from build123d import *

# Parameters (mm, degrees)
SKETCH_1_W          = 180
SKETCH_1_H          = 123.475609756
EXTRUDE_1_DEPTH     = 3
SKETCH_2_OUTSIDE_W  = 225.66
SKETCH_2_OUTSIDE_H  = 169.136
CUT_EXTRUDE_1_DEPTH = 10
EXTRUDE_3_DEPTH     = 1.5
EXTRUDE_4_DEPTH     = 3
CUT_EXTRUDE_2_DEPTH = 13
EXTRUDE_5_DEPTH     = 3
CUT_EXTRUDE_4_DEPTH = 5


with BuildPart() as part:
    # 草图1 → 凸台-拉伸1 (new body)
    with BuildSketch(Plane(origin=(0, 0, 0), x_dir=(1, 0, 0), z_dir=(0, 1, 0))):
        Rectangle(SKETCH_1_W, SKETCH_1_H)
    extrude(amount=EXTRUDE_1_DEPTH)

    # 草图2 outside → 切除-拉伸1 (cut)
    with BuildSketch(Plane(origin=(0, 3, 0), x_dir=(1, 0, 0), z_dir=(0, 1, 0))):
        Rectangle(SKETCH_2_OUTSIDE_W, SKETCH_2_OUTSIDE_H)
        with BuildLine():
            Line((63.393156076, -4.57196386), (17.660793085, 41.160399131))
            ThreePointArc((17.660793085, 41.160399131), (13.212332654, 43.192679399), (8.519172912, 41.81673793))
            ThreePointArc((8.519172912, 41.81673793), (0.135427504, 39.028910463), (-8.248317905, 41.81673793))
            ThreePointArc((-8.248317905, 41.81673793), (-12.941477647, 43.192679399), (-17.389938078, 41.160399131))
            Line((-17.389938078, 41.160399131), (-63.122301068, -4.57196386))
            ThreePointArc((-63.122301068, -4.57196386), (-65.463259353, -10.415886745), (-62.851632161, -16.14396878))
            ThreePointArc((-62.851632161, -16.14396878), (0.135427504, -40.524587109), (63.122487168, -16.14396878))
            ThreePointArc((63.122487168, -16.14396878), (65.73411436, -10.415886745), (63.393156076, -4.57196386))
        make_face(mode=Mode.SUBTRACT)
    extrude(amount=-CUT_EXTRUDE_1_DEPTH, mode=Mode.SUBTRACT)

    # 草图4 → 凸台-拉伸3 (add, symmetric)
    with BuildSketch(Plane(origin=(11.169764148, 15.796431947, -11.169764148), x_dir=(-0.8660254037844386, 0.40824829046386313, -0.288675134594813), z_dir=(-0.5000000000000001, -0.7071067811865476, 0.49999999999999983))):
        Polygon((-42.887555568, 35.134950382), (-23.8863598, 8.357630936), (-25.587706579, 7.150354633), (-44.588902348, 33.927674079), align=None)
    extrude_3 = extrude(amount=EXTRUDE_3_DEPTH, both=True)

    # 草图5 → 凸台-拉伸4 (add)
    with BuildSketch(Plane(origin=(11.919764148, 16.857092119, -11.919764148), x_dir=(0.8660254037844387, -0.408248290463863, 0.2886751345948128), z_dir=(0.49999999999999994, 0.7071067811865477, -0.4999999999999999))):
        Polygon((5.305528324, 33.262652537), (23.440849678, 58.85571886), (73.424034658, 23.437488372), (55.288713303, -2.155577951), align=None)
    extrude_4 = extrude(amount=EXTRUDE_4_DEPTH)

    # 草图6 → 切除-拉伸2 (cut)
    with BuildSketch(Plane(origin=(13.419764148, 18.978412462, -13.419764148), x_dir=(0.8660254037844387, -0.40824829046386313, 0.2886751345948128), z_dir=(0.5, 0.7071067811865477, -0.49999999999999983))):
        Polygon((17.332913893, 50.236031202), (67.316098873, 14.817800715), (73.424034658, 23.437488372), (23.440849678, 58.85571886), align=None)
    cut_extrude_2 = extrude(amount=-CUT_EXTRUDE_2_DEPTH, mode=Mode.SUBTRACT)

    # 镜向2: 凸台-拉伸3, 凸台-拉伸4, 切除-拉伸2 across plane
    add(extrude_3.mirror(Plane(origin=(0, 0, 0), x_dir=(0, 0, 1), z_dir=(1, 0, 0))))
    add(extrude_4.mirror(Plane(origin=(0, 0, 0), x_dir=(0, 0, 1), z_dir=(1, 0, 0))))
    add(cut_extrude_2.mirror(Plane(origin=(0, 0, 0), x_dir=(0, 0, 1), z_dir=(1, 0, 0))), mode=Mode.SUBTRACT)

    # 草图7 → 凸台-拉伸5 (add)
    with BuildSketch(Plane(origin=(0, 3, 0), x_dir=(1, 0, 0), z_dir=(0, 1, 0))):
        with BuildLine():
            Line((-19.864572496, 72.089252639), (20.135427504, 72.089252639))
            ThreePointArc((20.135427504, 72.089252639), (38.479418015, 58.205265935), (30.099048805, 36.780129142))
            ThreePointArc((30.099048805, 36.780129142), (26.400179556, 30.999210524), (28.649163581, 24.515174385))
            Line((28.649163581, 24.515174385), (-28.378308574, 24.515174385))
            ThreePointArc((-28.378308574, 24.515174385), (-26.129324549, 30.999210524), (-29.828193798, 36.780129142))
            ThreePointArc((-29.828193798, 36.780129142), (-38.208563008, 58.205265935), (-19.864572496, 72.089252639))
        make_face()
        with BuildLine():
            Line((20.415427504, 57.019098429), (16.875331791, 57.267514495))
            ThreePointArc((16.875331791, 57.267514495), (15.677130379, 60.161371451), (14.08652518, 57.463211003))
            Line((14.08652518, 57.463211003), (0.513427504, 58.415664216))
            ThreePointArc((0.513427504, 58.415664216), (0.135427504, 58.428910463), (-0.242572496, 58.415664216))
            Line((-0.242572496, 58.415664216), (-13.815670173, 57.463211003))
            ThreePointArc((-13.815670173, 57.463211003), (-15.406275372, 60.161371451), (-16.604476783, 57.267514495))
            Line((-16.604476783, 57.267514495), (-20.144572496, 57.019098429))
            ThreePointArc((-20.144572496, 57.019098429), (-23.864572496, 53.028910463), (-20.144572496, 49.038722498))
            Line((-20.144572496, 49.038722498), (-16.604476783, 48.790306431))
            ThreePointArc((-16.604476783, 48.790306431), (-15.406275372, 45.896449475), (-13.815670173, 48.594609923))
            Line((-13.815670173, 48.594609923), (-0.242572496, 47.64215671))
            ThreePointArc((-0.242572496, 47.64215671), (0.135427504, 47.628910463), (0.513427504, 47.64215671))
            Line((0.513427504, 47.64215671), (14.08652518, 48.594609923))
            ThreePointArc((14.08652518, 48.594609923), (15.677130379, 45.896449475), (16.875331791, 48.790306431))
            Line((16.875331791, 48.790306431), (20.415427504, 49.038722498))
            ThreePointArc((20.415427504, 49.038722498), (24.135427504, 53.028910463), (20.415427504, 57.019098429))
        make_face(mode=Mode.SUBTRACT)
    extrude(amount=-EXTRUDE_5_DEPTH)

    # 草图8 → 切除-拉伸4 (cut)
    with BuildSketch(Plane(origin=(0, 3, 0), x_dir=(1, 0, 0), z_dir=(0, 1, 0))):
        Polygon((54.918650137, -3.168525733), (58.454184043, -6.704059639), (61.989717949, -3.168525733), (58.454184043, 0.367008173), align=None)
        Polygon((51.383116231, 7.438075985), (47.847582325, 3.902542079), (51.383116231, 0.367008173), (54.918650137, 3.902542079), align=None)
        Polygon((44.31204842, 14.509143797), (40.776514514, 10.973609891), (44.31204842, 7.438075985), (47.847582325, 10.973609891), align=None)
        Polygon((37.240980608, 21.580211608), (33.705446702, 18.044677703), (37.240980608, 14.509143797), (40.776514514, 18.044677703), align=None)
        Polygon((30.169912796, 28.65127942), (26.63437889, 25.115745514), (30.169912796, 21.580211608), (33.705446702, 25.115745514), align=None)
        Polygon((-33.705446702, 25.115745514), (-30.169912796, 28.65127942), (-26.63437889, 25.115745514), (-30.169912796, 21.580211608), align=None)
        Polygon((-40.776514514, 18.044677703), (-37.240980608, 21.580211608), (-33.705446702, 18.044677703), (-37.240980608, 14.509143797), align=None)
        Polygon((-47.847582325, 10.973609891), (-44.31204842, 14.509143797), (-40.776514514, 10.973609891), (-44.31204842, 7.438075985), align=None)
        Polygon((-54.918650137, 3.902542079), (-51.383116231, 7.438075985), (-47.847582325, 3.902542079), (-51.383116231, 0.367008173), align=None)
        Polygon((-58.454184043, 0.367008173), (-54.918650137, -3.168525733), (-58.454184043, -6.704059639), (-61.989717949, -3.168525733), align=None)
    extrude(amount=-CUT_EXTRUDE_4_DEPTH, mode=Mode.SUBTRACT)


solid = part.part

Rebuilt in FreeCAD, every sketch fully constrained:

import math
import FreeCAD as App
import Part
import Sketcher

doc = App.newDocument("Part")
body = doc.addObject("PartDesign::Body", "Body")

# Sketch on XZ plane
sketch1 = doc.addObject("Sketcher::SketchObject", "Sketch")
body.addObject(sketch1)
sketch1.AttachmentSupport = (doc.XZ_Plane, [""])
sketch1.MapMode = "FlatFace"
sketch1.addGeometry(Part.LineSegment(App.Vector(-90, -61.737805, 0), App.Vector(-90, 61.737805, 0)), False)
sketch1.addGeometry(Part.LineSegment(App.Vector(-90, 61.737805, 0), App.Vector(90, 61.737805, 0)), False)
sketch1.addGeometry(Part.LineSegment(App.Vector(90, 61.737805, 0), App.Vector(90, -61.737805, 0)), False)
sketch1.addGeometry(Part.LineSegment(App.Vector(90, -61.737805, 0), App.Vector(-90, -61.737805, 0)), False)
sketch1.addConstraint(Sketcher.Constraint("Coincident", 0, 2, 1, 1))
sketch1.addConstraint(Sketcher.Constraint("Coincident", 1, 2, 2, 1))
sketch1.addConstraint(Sketcher.Constraint("Coincident", 2, 2, 3, 1))
sketch1.addConstraint(Sketcher.Constraint("Coincident", 3, 2, 0, 1))
sketch1.addConstraint(Sketcher.Constraint("Vertical", 0))
sketch1.addConstraint(Sketcher.Constraint("Horizontal", 1))
sketch1.addConstraint(Sketcher.Constraint("Vertical", 2))
sketch1.addConstraint(Sketcher.Constraint("Horizontal", 3))
sketch1.addConstraint(Sketcher.Constraint("Symmetric", 0, 2, 2, 2, -1, 1))
sketch1.addConstraint(Sketcher.Constraint("DistanceX", 1, 1, 1, 2, 180.0))
sketch1.addConstraint(Sketcher.Constraint("DistanceY", 0, 1, 0, 2, 123.47561))
pad1 = doc.addObject("PartDesign::Pad", "Pad")
body.addObject(pad1)
pad1.Profile = sketch1
pad1.Length = 3
pad1.Reversed = True

# Sketch on XZ plane
sketch2 = doc.addObject("Sketcher::SketchObject", "Sketch001")
body.addObject(sketch2)
sketch2.AttachmentSupport = (doc.XZ_Plane, [""])
sketch2.MapMode = "FlatFace"
sketch2.AttachmentOffset = App.Placement(App.Vector(0, 0, -3), App.Rotation())
sketch2.addGeometry(Part.LineSegment(App.Vector(-112.83, -84.568, 0), App.Vector(-112.83, 84.568, 0)), False)
sketch2.addGeometry(Part.LineSegment(App.Vector(-112.83, 84.568, 0), App.Vector(112.83, 84.568, 0)), False)
sketch2.addGeometry(Part.LineSegment(App.Vector(112.83, 84.568, 0), App.Vector(112.83, -84.568, 0)), False)
sketch2.addGeometry(Part.LineSegment(App.Vector(112.83, -84.568, 0), App.Vector(-112.83, -84.568, 0)), False)
sketch2.addGeometry(Part.LineSegment(App.Vector(17.660793, -41.160399, 0), App.Vector(63.393156, 4.571964, 0)), False)
sketch2.addGeometry(Part.ArcOfCircle(Part.Circle(App.Vector(57.736302, 10.228818, 0), App.Vector(0, 0, 1), 8), math.radians(-45), math.radians(47.679805)), False)
sketch2.addGeometry(Part.ArcOfCircle(Part.Circle(App.Vector(0.135428, -53.02891, 0), App.Vector(0, 0, 1), 93.553498), math.radians(47.679805), math.radians(132.320195)), False)
sketch2.addGeometry(Part.ArcOfCircle(Part.Circle(App.Vector(-57.465447, 10.228818, 0), App.Vector(0, 0, 1), 8), math.radians(132.320195), math.radians(225)), False)
sketch2.addGeometry(Part.LineSegment(App.Vector(-63.122301, 4.571964, 0), App.Vector(-17.389938, -41.160399, 0)), False)
sketch2.addGeometry(Part.ArcOfCircle(Part.Circle(App.Vector(-12.440191, -36.210652, 0), App.Vector(0, 0, 1), 7), math.radians(-135), math.radians(-53.213211)), False)
sketch2.addGeometry(Part.ArcOfCircle(Part.Circle(App.Vector(0.135428, -53.02891, 0), App.Vector(0, 0, 1), 14), math.radians(53.213211), math.radians(126.786789)), False)
sketch2.addGeometry(Part.ArcOfCircle(Part.Circle(App.Vector(12.711046, -36.210652, 0), App.Vector(0, 0, 1), 7), math.radians(-126.786789), math.radians(-45)), False)
sketch2.addConstraint(Sketcher.Constraint("Coincident", 0, 2, 1, 1))
sketch2.addConstraint(Sketcher.Constraint("Coincident", 1, 2, 2, 1))
sketch2.addConstraint(Sketcher.Constraint("Coincident", 2, 2, 3, 1))
sketch2.addConstraint(Sketcher.Constraint("Coincident", 3, 2, 0, 1))
sketch2.addConstraint(Sketcher.Constraint("Tangent", 4, 2, 5, 1))
sketch2.addConstraint(Sketcher.Constraint("Tangent", 5, 2, 6, 1))
sketch2.addConstraint(Sketcher.Constraint("Tangent", 6, 2, 7, 1))
sketch2.addConstraint(Sketcher.Constraint("Tangent", 7, 2, 8, 1))
sketch2.addConstraint(Sketcher.Constraint("Tangent", 8, 2, 9, 1))
sketch2.addConstraint(Sketcher.Constraint("Tangent", 9, 2, 10, 2))
sketch2.addConstraint(Sketcher.Constraint("Tangent", 10, 1, 11, 1))
sketch2.addConstraint(Sketcher.Constraint("Tangent", 11, 2, 4, 1))
sketch2.addConstraint(Sketcher.Constraint("Vertical", 0))
sketch2.addConstraint(Sketcher.Constraint("Horizontal", 1))
sketch2.addConstraint(Sketcher.Constraint("Vertical", 2))
sketch2.addConstraint(Sketcher.Constraint("Horizontal", 3))
sketch2.addConstraint(Sketcher.Constraint("Coincident", 10, 3, 6, 3))
sketch2.addConstraint(Sketcher.Constraint("Equal", 5, 7))
sketch2.addConstraint(Sketcher.Constraint("Equal", 9, 11))
sketch2.addConstraint(Sketcher.Constraint("Symmetric", 0, 2, 2, 2, -1, 1))
sketch2.addConstraint(Sketcher.Constraint("Perpendicular", 4, 8))
sketch2.addConstraint(Sketcher.Constraint("Horizontal", 5, 3, 7, 3))
sketch2.addConstraint(Sketcher.Constraint("Horizontal", 9, 3, 11, 3))
sketch2.addConstraint(Sketcher.Constraint("Radius", 5, 8.0))
sketch2.addConstraint(Sketcher.Constraint("Radius", 9, 7.0))
sketch2.addConstraint(Sketcher.Constraint("Radius", 10, 14.0))
sketch2.addConstraint(Sketcher.Constraint("DistanceX", 1, 1, 1, 2, 225.66))
sketch2.addConstraint(Sketcher.Constraint("DistanceY", 0, 1, 0, 2, 169.136))
sketch2.addConstraint(Sketcher.Constraint("Radius", 6, 93.553498))
sketch2.addConstraint(Sketcher.Constraint("DistanceX", -1, 1, 5, 3, 57.736302))
sketch2.addConstraint(Sketcher.Constraint("DistanceX", 7, 2, -1, 1, 63.122301))
sketch2.addConstraint(Sketcher.Constraint("DistanceY", 8, 2, -1, 1, 41.160399))
pocket1 = doc.addObject("PartDesign::Pocket", "Pocket")
body.addObject(pocket1)
pocket1.Profile = sketch2
pocket1.Length = 10
pocket1.Reversed = True

# Sketch on an angled plane
sketch3 = doc.addObject("Sketcher::SketchObject", "Sketch002")
body.addObject(sketch3)
sketch3.Placement = App.Placement(App.Vector(11.169764, 15.796432, -11.169764), App.Rotation(App.Vector(-0.866025404, 0.40824829, -0.288675135), App.Vector(0, -0.57735027, -0.816496581), App.Vector(-0.5, -0.707106781, 0.5), "ZXY"))
sketch3.addGeometry(Part.LineSegment(App.Vector(-23.88636, 8.357631, 0), App.Vector(-42.887556, 35.13495, 0)), False)
sketch3.addGeometry(Part.LineSegment(App.Vector(-42.887556, 35.13495, 0), App.Vector(-44.588902, 33.927674, 0)), False)
sketch3.addGeometry(Part.LineSegment(App.Vector(-44.588902, 33.927674, 0), App.Vector(-25.587707, 7.150355, 0)), False)
sketch3.addGeometry(Part.LineSegment(App.Vector(-25.587707, 7.150355, 0), App.Vector(-23.88636, 8.357631, 0)), False)
sketch3.addConstraint(Sketcher.Constraint("Coincident", 0, 2, 1, 1))
sketch3.addConstraint(Sketcher.Constraint("Coincident", 1, 2, 2, 1))
sketch3.addConstraint(Sketcher.Constraint("Coincident", 2, 2, 3, 1))
sketch3.addConstraint(Sketcher.Constraint("Coincident", 3, 2, 0, 1))
sketch3.addConstraint(Sketcher.Constraint("Perpendicular", 0, 1))
sketch3.addConstraint(Sketcher.Constraint("Perpendicular", 1, 2))
sketch3.addConstraint(Sketcher.Constraint("Perpendicular", 2, 3))
sketch3.addConstraint(Sketcher.Constraint("Distance", 0, 32.833981))
sketch3.addConstraint(Sketcher.Constraint("Distance", 1, 2.086168))
sketch3.addConstraint(Sketcher.Constraint("DistanceY", -1, 1, 0, 2, 35.13495))
sketch3.addConstraint(Sketcher.Constraint("DistanceX", 3, 2, -1, 1, 23.88636))
sketch3.addConstraint(Sketcher.Constraint("DistanceY", -1, 1, 3, 2, 8.357631))
pad2 = doc.addObject("PartDesign::Pad", "Pad001")
body.addObject(pad2)
pad2.Profile = sketch3
pad2.Length = 3
pad2.Midplane = True

# Sketch on an angled plane
sketch4 = doc.addObject("Sketcher::SketchObject", "Sketch003")
body.addObject(sketch4)
sketch4.Placement = App.Placement(App.Vector(11.919764, 16.857092, -11.919764), App.Rotation(App.Vector(0.866025404, -0.40824829, 0.288675135), App.Vector(0, -0.57735027, -0.816496581), App.Vector(0.5, 0.707106781, -0.5), "ZXY"))
sketch4.addGeometry(Part.LineSegment(App.Vector(23.44085, 58.855719, 0), App.Vector(5.305528, 33.262653, 0)), False)
sketch4.addGeometry(Part.LineSegment(App.Vector(5.305528, 33.262653, 0), App.Vector(55.288713, -2.155578, 0)), False)
sketch4.addGeometry(Part.LineSegment(App.Vector(55.288713, -2.155578, 0), App.Vector(73.424035, 23.437488, 0)), False)
sketch4.addGeometry(Part.LineSegment(App.Vector(73.424035, 23.437488, 0), App.Vector(23.44085, 58.855719, 0)), False)
sketch4.addConstraint(Sketcher.Constraint("Coincident", 0, 2, 1, 1))
sketch4.addConstraint(Sketcher.Constraint("Coincident", 1, 2, 2, 1))
sketch4.addConstraint(Sketcher.Constraint("Coincident", 2, 2, 3, 1))
sketch4.addConstraint(Sketcher.Constraint("Coincident", 3, 2, 0, 1))
sketch4.addConstraint(Sketcher.Constraint("Perpendicular", 0, 1))
sketch4.addConstraint(Sketcher.Constraint("Perpendicular", 1, 2))
sketch4.addConstraint(Sketcher.Constraint("Perpendicular", 2, 3))
sketch4.addConstraint(Sketcher.Constraint("Distance", 0, 31.367099))
sketch4.addConstraint(Sketcher.Constraint("DistanceX", -1, 1, 0, 2, 5.305528))
sketch4.addConstraint(Sketcher.Constraint("DistanceY", -1, 1, 2, 2, 23.437488))
sketch4.addConstraint(Sketcher.Constraint("DistanceX", -1, 1, 3, 2, 23.44085))
sketch4.addConstraint(Sketcher.Constraint("DistanceY", -1, 1, 3, 2, 58.855719))
pad3 = doc.addObject("PartDesign::Pad", "Pad002")
body.addObject(pad3)
pad3.Profile = sketch4
pad3.Length = 3

# Sketch on an angled plane
sketch5 = doc.addObject("Sketcher::SketchObject", "Sketch004")
body.addObject(sketch5)
sketch5.Placement = App.Placement(App.Vector(13.419764, 18.978412, -13.419764), App.Rotation(App.Vector(0.866025404, -0.40824829, 0.288675135), App.Vector(0, -0.57735027, -0.816496581), App.Vector(0.5, 0.707106781, -0.5), "ZXY"))
sketch5.addGeometry(Part.LineSegment(App.Vector(17.332914, 50.236031, 0), App.Vector(67.316099, 14.817801, 0)), False)
sketch5.addGeometry(Part.LineSegment(App.Vector(67.316099, 14.817801, 0), App.Vector(73.424035, 23.437488, 0)), False)
sketch5.addGeometry(Part.LineSegment(App.Vector(73.424035, 23.437488, 0), App.Vector(23.44085, 58.855719, 0)), False)
sketch5.addGeometry(Part.LineSegment(App.Vector(23.44085, 58.855719, 0), App.Vector(17.332914, 50.236031, 0)), False)
sketch5.addConstraint(Sketcher.Constraint("Coincident", 0, 2, 1, 1))
sketch5.addConstraint(Sketcher.Constraint("Coincident", 1, 2, 2, 1))
sketch5.addConstraint(Sketcher.Constraint("Coincident", 2, 2, 3, 1))
sketch5.addConstraint(Sketcher.Constraint("Coincident", 3, 2, 0, 1))
sketch5.addConstraint(Sketcher.Constraint("Perpendicular", 0, 1))
sketch5.addConstraint(Sketcher.Constraint("Perpendicular", 1, 2))
sketch5.addConstraint(Sketcher.Constraint("Perpendicular", 2, 3))
sketch5.addConstraint(Sketcher.Constraint("DistanceX", -1, 1, 0, 2, 67.316099))
sketch5.addConstraint(Sketcher.Constraint("DistanceY", -1, 1, 0, 2, 14.817801))
sketch5.addConstraint(Sketcher.Constraint("Distance", 1, 10.564369))
sketch5.addConstraint(Sketcher.Constraint("DistanceY", -1, 1, 1, 2, 23.437488))
sketch5.addConstraint(Sketcher.Constraint("DistanceX", -1, 1, 2, 2, 23.44085))
pocket2 = doc.addObject("PartDesign::Pocket", "Pocket001")
body.addObject(pocket2)
pocket2.Profile = sketch5
pocket2.Length = 13
doc.recompute()

mirrored = doc.addObject("PartDesign::Mirrored", "Mirrored")
body.addObject(mirrored)
mirrored.Originals = [pad2, pad3, pocket2]
mirrored.MirrorPlane = (doc.YZ_Plane, [""])
body.Tip = mirrored

# Sketch on XZ plane
sketch6 = doc.addObject("Sketcher::SketchObject", "Sketch005")
body.addObject(sketch6)
sketch6.AttachmentSupport = (doc.XZ_Plane, [""])
sketch6.MapMode = "FlatFace"
sketch6.AttachmentOffset = App.Placement(App.Vector(0, 0, -3), App.Rotation())
sketch6.addGeometry(Part.LineSegment(App.Vector(20.135428, -72.089253, 0), App.Vector(-19.864572, -72.089253, 0)), False)
sketch6.addGeometry(Part.ArcOfCircle(Part.Circle(App.Vector(-19.864572, -53.02891, 0), App.Vector(0, 0, 1), 19.060342), math.radians(121.516289), math.radians(270)), False)
sketch6.addGeometry(Part.ArcOfCircle(Part.Circle(App.Vector(-33.93912, -30.075986, 0), App.Vector(0, 0, 1), 7.864175), math.radians(-58.483711), math.radians(45)), False)
sketch6.addGeometry(Part.LineSegment(App.Vector(-28.378309, -24.515174, 0), App.Vector(28.649164, -24.515174, 0)), False)
sketch6.addGeometry(Part.ArcOfCircle(Part.Circle(App.Vector(34.209975, -30.075986, 0), App.Vector(0, 0, 1), 7.864175), math.radians(135), math.radians(238.483711)), False)
sketch6.addGeometry(Part.ArcOfCircle(Part.Circle(App.Vector(20.135428, -53.02891, 0), App.Vector(0, 0, 1), 19.060342), math.radians(-90), math.radians(58.483711)), False)
sketch6.addGeometry(Part.ArcOfCircle(Part.Circle(App.Vector(20.135428, -53.02891, 0), App.Vector(0, 0, 1), 4), math.radians(-85.986013), math.radians(85.986013)), False)
sketch6.addGeometry(Part.LineSegment(App.Vector(20.415428, -49.038722, 0), App.Vector(16.875332, -48.790306, 0)), False)
sketch6.addGeometry(Part.ArcOfCircle(Part.Circle(App.Vector(15.55463, -47.642157, 0), App.Vector(0, 0, 1), 1.75), math.radians(-41.002014), math.radians(212.974039)), False)
sketch6.addGeometry(Part.LineSegment(App.Vector(14.086525, -48.59461, 0), App.Vector(0.513428, -47.642157, 0)), False)
sketch6.addGeometry(Part.ArcOfCircle(Part.Circle(App.Vector(0.135428, -53.02891, 0), App.Vector(0, 0, 1), 5.4), math.radians(85.986013), math.radians(94.013987)), False)
sketch6.addGeometry(Part.LineSegment(App.Vector(-0.242572, -47.642157, 0), App.Vector(-13.81567, -48.59461, 0)), False)
sketch6.addGeometry(Part.ArcOfCircle(Part.Circle(App.Vector(-15.283775, -47.642157, 0), App.Vector(0, 0, 1), 1.75), math.radians(-32.974039), math.radians(221.002014)), False)
sketch6.addGeometry(Part.LineSegment(App.Vector(-16.604477, -48.790306, 0), App.Vector(-20.144572, -49.038722, 0)), False)
sketch6.addGeometry(Part.ArcOfCircle(Part.Circle(App.Vector(-19.864572, -53.02891, 0), App.Vector(0, 0, 1), 4), math.radians(94.013987), math.radians(265.986013)), False)
sketch6.addGeometry(Part.LineSegment(App.Vector(-20.144572, -57.019098, 0), App.Vector(-16.604477, -57.267514, 0)), False)
sketch6.addGeometry(Part.ArcOfCircle(Part.Circle(App.Vector(-15.283775, -58.415664, 0), App.Vector(0, 0, 1), 1.75), math.radians(138.997986), math.radians(392.974039)), False)
sketch6.addGeometry(Part.LineSegment(App.Vector(-13.81567, -57.463211, 0), App.Vector(-0.242572, -58.415664, 0)), False)
sketch6.addGeometry(Part.ArcOfCircle(Part.Circle(App.Vector(0.135428, -53.028911, 0), App.Vector(0, 0, 1), 5.4), math.radians(-94.013987), math.radians(-85.986013)), False)
sketch6.addGeometry(Part.LineSegment(App.Vector(0.513428, -58.415664, 0), App.Vector(14.086525, -57.463211, 0)), False)
sketch6.addGeometry(Part.ArcOfCircle(Part.Circle(App.Vector(15.55463, -58.415664, 0), App.Vector(0, 0, 1), 1.75), math.radians(147.025961), math.radians(401.002014)), False)
sketch6.addGeometry(Part.LineSegment(App.Vector(16.875332, -57.267514, 0), App.Vector(20.415428, -57.019098, 0)), False)
sketch6.addConstraint(Sketcher.Constraint("Tangent", 0, 2, 1, 2))
sketch6.addConstraint(Sketcher.Constraint("Tangent", 1, 1, 2, 1))
sketch6.addConstraint(Sketcher.Constraint("Coincident", 2, 2, 3, 1))
sketch6.addConstraint(Sketcher.Constraint("Coincident", 3, 2, 4, 1))
sketch6.addConstraint(Sketcher.Constraint("Tangent", 4, 2, 5, 2))
sketch6.addConstraint(Sketcher.Constraint("Tangent", 5, 1, 0, 1))
sketch6.addConstraint(Sketcher.Constraint("Tangent", 6, 2, 7, 1))
sketch6.addConstraint(Sketcher.Constraint("Coincident", 7, 2, 8, 1))
sketch6.addConstraint(Sketcher.Constraint("Coincident", 8, 2, 9, 1))
sketch6.addConstraint(Sketcher.Constraint("Tangent", 9, 2, 10, 1))
sketch6.addConstraint(Sketcher.Constraint("Tangent", 10, 2, 11, 1))
sketch6.addConstraint(Sketcher.Constraint("Coincident", 11, 2, 12, 1))
sketch6.addConstraint(Sketcher.Constraint("Coincident", 12, 2, 13, 1))
sketch6.addConstraint(Sketcher.Constraint("Tangent", 13, 2, 14, 1))
sketch6.addConstraint(Sketcher.Constraint("Tangent", 14, 2, 15, 1))
sketch6.addConstraint(Sketcher.Constraint("Coincident", 15, 2, 16, 1))
sketch6.addConstraint(Sketcher.Constraint("Coincident", 16, 2, 17, 1))
sketch6.addConstraint(Sketcher.Constraint("Tangent", 17, 2, 18, 1))
sketch6.addConstraint(Sketcher.Constraint("Tangent", 18, 2, 19, 1))
sketch6.addConstraint(Sketcher.Constraint("Coincident", 19, 2, 20, 1))
sketch6.addConstraint(Sketcher.Constraint("Coincident", 20, 2, 21, 1))
sketch6.addConstraint(Sketcher.Constraint("Tangent", 21, 2, 6, 1))
sketch6.addConstraint(Sketcher.Constraint("Horizontal", 0))
sketch6.addConstraint(Sketcher.Constraint("Horizontal", 3))
sketch6.addConstraint(Sketcher.Constraint("Coincident", 6, 3, 5, 3))
sketch6.addConstraint(Sketcher.Constraint("Coincident", 14, 3, 1, 3))
sketch6.addConstraint(Sketcher.Constraint("Coincident", 18, 3, 10, 3))
sketch6.addConstraint(Sketcher.Constraint("Equal", 2, 4))
sketch6.addConstraint(Sketcher.Constraint("Equal", 1, 5))
sketch6.addConstraint(Sketcher.Constraint("Equal", 8, 12))
sketch6.addConstraint(Sketcher.Constraint("Equal", 6, 14))
sketch6.addConstraint(Sketcher.Constraint("Equal", 12, 16))
sketch6.addConstraint(Sketcher.Constraint("Equal", 10, 18))
sketch6.addConstraint(Sketcher.Constraint("Equal", 16, 20))
sketch6.addConstraint(Sketcher.Constraint("Parallel", 7, 9))
sketch6.addConstraint(Sketcher.Constraint("Parallel", 11, 13))
sketch6.addConstraint(Sketcher.Constraint("Parallel", 9, 15))
sketch6.addConstraint(Sketcher.Constraint("Parallel", 15, 17))
sketch6.addConstraint(Sketcher.Constraint("Parallel", 13, 19))
sketch6.addConstraint(Sketcher.Constraint("Parallel", 19, 21))
sketch6.addConstraint(Sketcher.Constraint("Horizontal", 2, 3, 4, 3))
sketch6.addConstraint(Sketcher.Constraint("Horizontal", 6, 3, 10, 3))
sketch6.addConstraint(Sketcher.Constraint("Horizontal", 8, 3, 12, 3))
sketch6.addConstraint(Sketcher.Constraint("Horizontal", 16, 3, 20, 3))
sketch6.addConstraint(Sketcher.Constraint("Horizontal", 12, 3, 9, 2))
sketch6.addConstraint(Sketcher.Constraint("Horizontal", 9, 2, 10, 2))
sketch6.addConstraint(Sketcher.Constraint("Horizontal", 8, 2, 11, 2))
sketch6.addConstraint(Sketcher.Constraint("Horizontal", 7, 2, 12, 2))
sketch6.addConstraint(Sketcher.Constraint("Horizontal", 20, 3, 17, 2))
sketch6.addConstraint(Sketcher.Constraint("Horizontal", 16, 2, 19, 2))
sketch6.addConstraint(Sketcher.Constraint("Vertical", 12, 3, 16, 3))
sketch6.addConstraint(Sketcher.Constraint("Radius", 6, 4.0))
sketch6.addConstraint(Sketcher.Constraint("Radius", 10, 5.4))
sketch6.addConstraint(Sketcher.Constraint("DistanceX", 0, 2, 0, 1, 40.0))
sketch6.addConstraint(Sketcher.Constraint("Radius", 8, 1.75))
sketch6.addConstraint(Sketcher.Constraint("DistanceX", 5, 3, 6, 2, 0.28))
sketch6.addConstraint(Sketcher.Constraint("Radius", 1, 19.060342))
sketch6.addConstraint(Sketcher.Constraint("Radius", 2, 7.864175))
sketch6.addConstraint(Sketcher.Constraint("Distance", 7, 3.548801))
sketch6.addConstraint(Sketcher.Constraint("DistanceY", 14, 2, -1, 1, 57.019098))
sketch6.addConstraint(Sketcher.Constraint("DistanceX", 3, 1, 3, 2, 57.027472))
sketch6.addConstraint(Sketcher.Constraint("DistanceX", 2, 3, -1, 1, 33.93912))
sketch6.addConstraint(Sketcher.Constraint("DistanceX", -1, 1, 8, 3, 15.55463))
pad4 = doc.addObject("PartDesign::Pad", "Pad003")
body.addObject(pad4)
pad4.Profile = sketch6
pad4.Length = 3

# Sketch on XZ plane
sketch7 = doc.addObject("Sketcher::SketchObject", "Sketch006")
body.addObject(sketch7)
sketch7.AttachmentSupport = (doc.XZ_Plane, [""])
sketch7.MapMode = "FlatFace"
sketch7.AttachmentOffset = App.Placement(App.Vector(0, 0, -3), App.Rotation())
sketch7.addGeometry(Part.LineSegment(App.Vector(54.91865, 3.168526, 0), App.Vector(58.454184, 6.70406, 0)), False)
sketch7.addGeometry(Part.LineSegment(App.Vector(58.454184, 6.70406, 0), App.Vector(61.989718, 3.168526, 0)), False)
sketch7.addGeometry(Part.LineSegment(App.Vector(61.989718, 3.168526, 0), App.Vector(58.454184, -0.367008, 0)), False)
sketch7.addGeometry(Part.LineSegment(App.Vector(58.454184, -0.367008, 0), App.Vector(54.91865, 3.168526, 0)), False)
sketch7.addGeometry(Part.LineSegment(App.Vector(51.383116, -7.438076, 0), App.Vector(47.847582, -3.902542, 0)), False)
sketch7.addGeometry(Part.LineSegment(App.Vector(47.847582, -3.902542, 0), App.Vector(51.383116, -0.367008, 0)), False)
sketch7.addGeometry(Part.LineSegment(App.Vector(51.383116, -0.367008, 0), App.Vector(54.91865, -3.902542, 0)), False)
sketch7.addGeometry(Part.LineSegment(App.Vector(54.91865, -3.902542, 0), App.Vector(51.383116, -7.438076, 0)), False)
sketch7.addGeometry(Part.LineSegment(App.Vector(44.312048, -14.509144, 0), App.Vector(40.776515, -10.97361, 0)), False)
sketch7.addGeometry(Part.LineSegment(App.Vector(40.776515, -10.97361, 0), App.Vector(44.312048, -7.438076, 0)), False)
sketch7.addGeometry(Part.LineSegment(App.Vector(44.312048, -7.438076, 0), App.Vector(47.847582, -10.97361, 0)), False)
sketch7.addGeometry(Part.LineSegment(App.Vector(47.847582, -10.97361, 0), App.Vector(44.312048, -14.509144, 0)), False)
sketch7.addGeometry(Part.LineSegment(App.Vector(37.240981, -21.580212, 0), App.Vector(33.705447, -18.044678, 0)), False)
sketch7.addGeometry(Part.LineSegment(App.Vector(33.705447, -18.044678, 0), App.Vector(37.240981, -14.509144, 0)), False)
sketch7.addGeometry(Part.LineSegment(App.Vector(37.240981, -14.509144, 0), App.Vector(40.776515, -18.044678, 0)), False)
sketch7.addGeometry(Part.LineSegment(App.Vector(40.776515, -18.044678, 0), App.Vector(37.240981, -21.580212, 0)), False)
sketch7.addGeometry(Part.LineSegment(App.Vector(30.169913, -28.651279, 0), App.Vector(26.634379, -25.115746, 0)), False)
sketch7.addGeometry(Part.LineSegment(App.Vector(26.634379, -25.115746, 0), App.Vector(30.169913, -21.580212, 0)), False)
sketch7.addGeometry(Part.LineSegment(App.Vector(30.169913, -21.580212, 0), App.Vector(33.705447, -25.115746, 0)), False)
sketch7.addGeometry(Part.LineSegment(App.Vector(33.705447, -25.115746, 0), App.Vector(30.169913, -28.651279, 0)), False)
sketch7.addGeometry(Part.LineSegment(App.Vector(-30.169913, -28.651279, 0), App.Vector(-33.705447, -25.115746, 0)), False)
sketch7.addGeometry(Part.LineSegment(App.Vector(-33.705447, -25.115746, 0), App.Vector(-30.169913, -21.580212, 0)), False)
sketch7.addGeometry(Part.LineSegment(App.Vector(-30.169913, -21.580212, 0), App.Vector(-26.634379, -25.115746, 0)), False)
sketch7.addGeometry(Part.LineSegment(App.Vector(-26.634379, -25.115746, 0), App.Vector(-30.169913, -28.651279, 0)), False)
sketch7.addGeometry(Part.LineSegment(App.Vector(-37.240981, -21.580212, 0), App.Vector(-40.776515, -18.044678, 0)), False)
sketch7.addGeometry(Part.LineSegment(App.Vector(-40.776515, -18.044678, 0), App.Vector(-37.240981, -14.509144, 0)), False)
sketch7.addGeometry(Part.LineSegment(App.Vector(-37.240981, -14.509144, 0), App.Vector(-33.705447, -18.044678, 0)), False)
sketch7.addGeometry(Part.LineSegment(App.Vector(-33.705447, -18.044678, 0), App.Vector(-37.240981, -21.580212, 0)), False)
sketch7.addGeometry(Part.LineSegment(App.Vector(-44.312048, -14.509144, 0), App.Vector(-47.847582, -10.97361, 0)), False)
sketch7.addGeometry(Part.LineSegment(App.Vector(-47.847582, -10.97361, 0), App.Vector(-44.312048, -7.438076, 0)), False)
sketch7.addGeometry(Part.LineSegment(App.Vector(-44.312048, -7.438076, 0), App.Vector(-40.776515, -10.97361, 0)), False)
sketch7.addGeometry(Part.LineSegment(App.Vector(-40.776515, -10.97361, 0), App.Vector(-44.312048, -14.509144, 0)), False)
sketch7.addGeometry(Part.LineSegment(App.Vector(-51.383116, -7.438076, 0), App.Vector(-54.91865, -3.902542, 0)), False)
sketch7.addGeometry(Part.LineSegment(App.Vector(-54.91865, -3.902542, 0), App.Vector(-51.383116, -0.367008, 0)), False)
sketch7.addGeometry(Part.LineSegment(App.Vector(-51.383116, -0.367008, 0), App.Vector(-47.847582, -3.902542, 0)), False)
sketch7.addGeometry(Part.LineSegment(App.Vector(-47.847582, -3.902542, 0), App.Vector(-51.383116, -7.438076, 0)), False)
sketch7.addGeometry(Part.LineSegment(App.Vector(-54.91865, 3.168526, 0), App.Vector(-58.454184, -0.367008, 0)), False)
sketch7.addGeometry(Part.LineSegment(App.Vector(-58.454184, -0.367008, 0), App.Vector(-61.989718, 3.168526, 0)), False)
sketch7.addGeometry(Part.LineSegment(App.Vector(-61.989718, 3.168526, 0), App.Vector(-58.454184, 6.70406, 0)), False)
sketch7.addGeometry(Part.LineSegment(App.Vector(-58.454184, 6.70406, 0), App.Vector(-54.91865, 3.168526, 0)), False)
sketch7.addConstraint(Sketcher.Constraint("Coincident", 0, 2, 1, 1))
sketch7.addConstraint(Sketcher.Constraint("Coincident", 1, 2, 2, 1))
sketch7.addConstraint(Sketcher.Constraint("Coincident", 2, 2, 3, 1))
sketch7.addConstraint(Sketcher.Constraint("Coincident", 3, 2, 0, 1))
sketch7.addConstraint(Sketcher.Constraint("Coincident", 4, 2, 5, 1))
sketch7.addConstraint(Sketcher.Constraint("Coincident", 5, 2, 6, 1))
sketch7.addConstraint(Sketcher.Constraint("Coincident", 6, 2, 7, 1))
sketch7.addConstraint(Sketcher.Constraint("Coincident", 7, 2, 4, 1))
sketch7.addConstraint(Sketcher.Constraint("Coincident", 8, 2, 9, 1))
sketch7.addConstraint(Sketcher.Constraint("Coincident", 9, 2, 10, 1))
sketch7.addConstraint(Sketcher.Constraint("Coincident", 10, 2, 11, 1))
sketch7.addConstraint(Sketcher.Constraint("Coincident", 11, 2, 8, 1))
sketch7.addConstraint(Sketcher.Constraint("Coincident", 12, 2, 13, 1))
sketch7.addConstraint(Sketcher.Constraint("Coincident", 13, 2, 14, 1))
sketch7.addConstraint(Sketcher.Constraint("Coincident", 14, 2, 15, 1))
sketch7.addConstraint(Sketcher.Constraint("Coincident", 15, 2, 12, 1))
sketch7.addConstraint(Sketcher.Constraint("Coincident", 16, 2, 17, 1))
sketch7.addConstraint(Sketcher.Constraint("Coincident", 17, 2, 18, 1))
sketch7.addConstraint(Sketcher.Constraint("Coincident", 18, 2, 19, 1))
sketch7.addConstraint(Sketcher.Constraint("Coincident", 19, 2, 16, 1))
sketch7.addConstraint(Sketcher.Constraint("Coincident", 20, 2, 21, 1))
sketch7.addConstraint(Sketcher.Constraint("Coincident", 21, 2, 22, 1))
sketch7.addConstraint(Sketcher.Constraint("Coincident", 22, 2, 23, 1))
sketch7.addConstraint(Sketcher.Constraint("Coincident", 23, 2, 20, 1))
sketch7.addConstraint(Sketcher.Constraint("Coincident", 24, 2, 25, 1))
sketch7.addConstraint(Sketcher.Constraint("Coincident", 25, 2, 26, 1))
sketch7.addConstraint(Sketcher.Constraint("Coincident", 26, 2, 27, 1))
sketch7.addConstraint(Sketcher.Constraint("Coincident", 27, 2, 24, 1))
sketch7.addConstraint(Sketcher.Constraint("Coincident", 28, 2, 29, 1))
sketch7.addConstraint(Sketcher.Constraint("Coincident", 29, 2, 30, 1))
sketch7.addConstraint(Sketcher.Constraint("Coincident", 30, 2, 31, 1))
sketch7.addConstraint(Sketcher.Constraint("Coincident", 31, 2, 28, 1))
sketch7.addConstraint(Sketcher.Constraint("Coincident", 32, 2, 33, 1))
sketch7.addConstraint(Sketcher.Constraint("Coincident", 33, 2, 34, 1))
sketch7.addConstraint(Sketcher.Constraint("Coincident", 34, 2, 35, 1))
sketch7.addConstraint(Sketcher.Constraint("Coincident", 35, 2, 32, 1))
sketch7.addConstraint(Sketcher.Constraint("Coincident", 36, 2, 37, 1))
sketch7.addConstraint(Sketcher.Constraint("Coincident", 37, 2, 38, 1))
sketch7.addConstraint(Sketcher.Constraint("Coincident", 38, 2, 39, 1))
sketch7.addConstraint(Sketcher.Constraint("Coincident", 39, 2, 36, 1))
sketch7.addConstraint(Sketcher.Constraint("Symmetric", 18, 2, 20, 2, -2))
sketch7.addConstraint(Sketcher.Constraint("Symmetric", 17, 2, 21, 2, -2))
sketch7.addConstraint(Sketcher.Constraint("Symmetric", 16, 2, 22, 2, -2))
sketch7.addConstraint(Sketcher.Constraint("Symmetric", 19, 2, 23, 2, -2))
sketch7.addConstraint(Sketcher.Constraint("Symmetric", 14, 2, 24, 2, -2))
sketch7.addConstraint(Sketcher.Constraint("Symmetric", 13, 2, 25, 2, -2))
sketch7.addConstraint(Sketcher.Constraint("Symmetric", 12, 2, 26, 2, -2))
sketch7.addConstraint(Sketcher.Constraint("Symmetric", 15, 2, 27, 2, -2))
sketch7.addConstraint(Sketcher.Constraint("Symmetric", 10, 2, 28, 2, -2))
sketch7.addConstraint(Sketcher.Constraint("Symmetric", 9, 2, 29, 2, -2))
sketch7.addConstraint(Sketcher.Constraint("Symmetric", 8, 2, 30, 2, -2))
sketch7.addConstraint(Sketcher.Constraint("Symmetric", 11, 2, 31, 2, -2))
sketch7.addConstraint(Sketcher.Constraint("Symmetric", 6, 2, 32, 2, -2))
sketch7.addConstraint(Sketcher.Constraint("Symmetric", 5, 2, 33, 2, -2))
sketch7.addConstraint(Sketcher.Constraint("Symmetric", 4, 2, 34, 2, -2))
sketch7.addConstraint(Sketcher.Constraint("Symmetric", 7, 2, 35, 2, -2))
sketch7.addConstraint(Sketcher.Constraint("Symmetric", 2, 2, 36, 2, -2))
sketch7.addConstraint(Sketcher.Constraint("Symmetric", 1, 2, 37, 2, -2))
sketch7.addConstraint(Sketcher.Constraint("Symmetric", 0, 2, 38, 2, -2))
sketch7.addConstraint(Sketcher.Constraint("Symmetric", 3, 2, 39, 2, -2))
sketch7.addConstraint(Sketcher.Constraint("Perpendicular", 0, 1))
sketch7.addConstraint(Sketcher.Constraint("Perpendicular", 1, 2))
sketch7.addConstraint(Sketcher.Constraint("Perpendicular", 2, 3))
sketch7.addConstraint(Sketcher.Constraint("Parallel", 3, 4))
sketch7.addConstraint(Sketcher.Constraint("Perpendicular", 4, 5))
sketch7.addConstraint(Sketcher.Constraint("Perpendicular", 5, 6))
sketch7.addConstraint(Sketcher.Constraint("Perpendicular", 6, 7))
sketch7.addConstraint(Sketcher.Constraint("Perpendicular", 7, 8))
sketch7.addConstraint(Sketcher.Constraint("Perpendicular", 8, 9))
sketch7.addConstraint(Sketcher.Constraint("Perpendicular", 9, 10))
sketch7.addConstraint(Sketcher.Constraint("Perpendicular", 10, 11))
sketch7.addConstraint(Sketcher.Constraint("Perpendicular", 11, 12))
sketch7.addConstraint(Sketcher.Constraint("Perpendicular", 12, 13))
sketch7.addConstraint(Sketcher.Constraint("Perpendicular", 13, 14))
sketch7.addConstraint(Sketcher.Constraint("Perpendicular", 14, 15))
sketch7.addConstraint(Sketcher.Constraint("Perpendicular", 15, 16))
sketch7.addConstraint(Sketcher.Constraint("Perpendicular", 16, 17))
sketch7.addConstraint(Sketcher.Constraint("Perpendicular", 17, 18))
sketch7.addConstraint(Sketcher.Constraint("Perpendicular", 18, 19))
sketch7.addConstraint(Sketcher.Constraint("Perpendicular", 19, 20))
sketch7.addConstraint(Sketcher.Constraint("Horizontal", 1, 2, 3, 2))
sketch7.addConstraint(Sketcher.Constraint("Horizontal", 2, 2, 5, 2))
sketch7.addConstraint(Sketcher.Constraint("Horizontal", 4, 2, 6, 2))
sketch7.addConstraint(Sketcher.Constraint("Horizontal", 7, 2, 9, 2))
sketch7.addConstraint(Sketcher.Constraint("Horizontal", 8, 2, 10, 2))
sketch7.addConstraint(Sketcher.Constraint("Horizontal", 11, 2, 13, 2))
sketch7.addConstraint(Sketcher.Constraint("Horizontal", 12, 2, 14, 2))
sketch7.addConstraint(Sketcher.Constraint("Horizontal", 15, 2, 17, 2))
sketch7.addConstraint(Sketcher.Constraint("Horizontal", 16, 2, 18, 2))
sketch7.addConstraint(Sketcher.Constraint("Vertical", 3, 2, 6, 2))
sketch7.addConstraint(Sketcher.Constraint("Vertical", 4, 2, 10, 2))
sketch7.addConstraint(Sketcher.Constraint("Vertical", 8, 2, 14, 2))
sketch7.addConstraint(Sketcher.Constraint("Vertical", 12, 2, 18, 2))
sketch7.addConstraint(Sketcher.Constraint("Equal", 3, 4))
sketch7.addConstraint(Sketcher.Constraint("Equal", 7, 8))
sketch7.addConstraint(Sketcher.Constraint("Equal", 11, 12))
sketch7.addConstraint(Sketcher.Constraint("Equal", 15, 16))
sketch7.addConstraint(Sketcher.Constraint("Distance", 0, 5.0))
sketch7.addConstraint(Sketcher.Constraint("DistanceY", -1, 1, 0, 2, 6.70406))
sketch7.addConstraint(Sketcher.Constraint("DistanceX", -1, 1, 3, 2, 54.91865))
pocket3 = doc.addObject("PartDesign::Pocket", "Pocket002")
body.addObject(pocket3)
pocket3.Profile = sketch7
pocket3.Length = 5
pocket3.Reversed = True

doc.recompute()
